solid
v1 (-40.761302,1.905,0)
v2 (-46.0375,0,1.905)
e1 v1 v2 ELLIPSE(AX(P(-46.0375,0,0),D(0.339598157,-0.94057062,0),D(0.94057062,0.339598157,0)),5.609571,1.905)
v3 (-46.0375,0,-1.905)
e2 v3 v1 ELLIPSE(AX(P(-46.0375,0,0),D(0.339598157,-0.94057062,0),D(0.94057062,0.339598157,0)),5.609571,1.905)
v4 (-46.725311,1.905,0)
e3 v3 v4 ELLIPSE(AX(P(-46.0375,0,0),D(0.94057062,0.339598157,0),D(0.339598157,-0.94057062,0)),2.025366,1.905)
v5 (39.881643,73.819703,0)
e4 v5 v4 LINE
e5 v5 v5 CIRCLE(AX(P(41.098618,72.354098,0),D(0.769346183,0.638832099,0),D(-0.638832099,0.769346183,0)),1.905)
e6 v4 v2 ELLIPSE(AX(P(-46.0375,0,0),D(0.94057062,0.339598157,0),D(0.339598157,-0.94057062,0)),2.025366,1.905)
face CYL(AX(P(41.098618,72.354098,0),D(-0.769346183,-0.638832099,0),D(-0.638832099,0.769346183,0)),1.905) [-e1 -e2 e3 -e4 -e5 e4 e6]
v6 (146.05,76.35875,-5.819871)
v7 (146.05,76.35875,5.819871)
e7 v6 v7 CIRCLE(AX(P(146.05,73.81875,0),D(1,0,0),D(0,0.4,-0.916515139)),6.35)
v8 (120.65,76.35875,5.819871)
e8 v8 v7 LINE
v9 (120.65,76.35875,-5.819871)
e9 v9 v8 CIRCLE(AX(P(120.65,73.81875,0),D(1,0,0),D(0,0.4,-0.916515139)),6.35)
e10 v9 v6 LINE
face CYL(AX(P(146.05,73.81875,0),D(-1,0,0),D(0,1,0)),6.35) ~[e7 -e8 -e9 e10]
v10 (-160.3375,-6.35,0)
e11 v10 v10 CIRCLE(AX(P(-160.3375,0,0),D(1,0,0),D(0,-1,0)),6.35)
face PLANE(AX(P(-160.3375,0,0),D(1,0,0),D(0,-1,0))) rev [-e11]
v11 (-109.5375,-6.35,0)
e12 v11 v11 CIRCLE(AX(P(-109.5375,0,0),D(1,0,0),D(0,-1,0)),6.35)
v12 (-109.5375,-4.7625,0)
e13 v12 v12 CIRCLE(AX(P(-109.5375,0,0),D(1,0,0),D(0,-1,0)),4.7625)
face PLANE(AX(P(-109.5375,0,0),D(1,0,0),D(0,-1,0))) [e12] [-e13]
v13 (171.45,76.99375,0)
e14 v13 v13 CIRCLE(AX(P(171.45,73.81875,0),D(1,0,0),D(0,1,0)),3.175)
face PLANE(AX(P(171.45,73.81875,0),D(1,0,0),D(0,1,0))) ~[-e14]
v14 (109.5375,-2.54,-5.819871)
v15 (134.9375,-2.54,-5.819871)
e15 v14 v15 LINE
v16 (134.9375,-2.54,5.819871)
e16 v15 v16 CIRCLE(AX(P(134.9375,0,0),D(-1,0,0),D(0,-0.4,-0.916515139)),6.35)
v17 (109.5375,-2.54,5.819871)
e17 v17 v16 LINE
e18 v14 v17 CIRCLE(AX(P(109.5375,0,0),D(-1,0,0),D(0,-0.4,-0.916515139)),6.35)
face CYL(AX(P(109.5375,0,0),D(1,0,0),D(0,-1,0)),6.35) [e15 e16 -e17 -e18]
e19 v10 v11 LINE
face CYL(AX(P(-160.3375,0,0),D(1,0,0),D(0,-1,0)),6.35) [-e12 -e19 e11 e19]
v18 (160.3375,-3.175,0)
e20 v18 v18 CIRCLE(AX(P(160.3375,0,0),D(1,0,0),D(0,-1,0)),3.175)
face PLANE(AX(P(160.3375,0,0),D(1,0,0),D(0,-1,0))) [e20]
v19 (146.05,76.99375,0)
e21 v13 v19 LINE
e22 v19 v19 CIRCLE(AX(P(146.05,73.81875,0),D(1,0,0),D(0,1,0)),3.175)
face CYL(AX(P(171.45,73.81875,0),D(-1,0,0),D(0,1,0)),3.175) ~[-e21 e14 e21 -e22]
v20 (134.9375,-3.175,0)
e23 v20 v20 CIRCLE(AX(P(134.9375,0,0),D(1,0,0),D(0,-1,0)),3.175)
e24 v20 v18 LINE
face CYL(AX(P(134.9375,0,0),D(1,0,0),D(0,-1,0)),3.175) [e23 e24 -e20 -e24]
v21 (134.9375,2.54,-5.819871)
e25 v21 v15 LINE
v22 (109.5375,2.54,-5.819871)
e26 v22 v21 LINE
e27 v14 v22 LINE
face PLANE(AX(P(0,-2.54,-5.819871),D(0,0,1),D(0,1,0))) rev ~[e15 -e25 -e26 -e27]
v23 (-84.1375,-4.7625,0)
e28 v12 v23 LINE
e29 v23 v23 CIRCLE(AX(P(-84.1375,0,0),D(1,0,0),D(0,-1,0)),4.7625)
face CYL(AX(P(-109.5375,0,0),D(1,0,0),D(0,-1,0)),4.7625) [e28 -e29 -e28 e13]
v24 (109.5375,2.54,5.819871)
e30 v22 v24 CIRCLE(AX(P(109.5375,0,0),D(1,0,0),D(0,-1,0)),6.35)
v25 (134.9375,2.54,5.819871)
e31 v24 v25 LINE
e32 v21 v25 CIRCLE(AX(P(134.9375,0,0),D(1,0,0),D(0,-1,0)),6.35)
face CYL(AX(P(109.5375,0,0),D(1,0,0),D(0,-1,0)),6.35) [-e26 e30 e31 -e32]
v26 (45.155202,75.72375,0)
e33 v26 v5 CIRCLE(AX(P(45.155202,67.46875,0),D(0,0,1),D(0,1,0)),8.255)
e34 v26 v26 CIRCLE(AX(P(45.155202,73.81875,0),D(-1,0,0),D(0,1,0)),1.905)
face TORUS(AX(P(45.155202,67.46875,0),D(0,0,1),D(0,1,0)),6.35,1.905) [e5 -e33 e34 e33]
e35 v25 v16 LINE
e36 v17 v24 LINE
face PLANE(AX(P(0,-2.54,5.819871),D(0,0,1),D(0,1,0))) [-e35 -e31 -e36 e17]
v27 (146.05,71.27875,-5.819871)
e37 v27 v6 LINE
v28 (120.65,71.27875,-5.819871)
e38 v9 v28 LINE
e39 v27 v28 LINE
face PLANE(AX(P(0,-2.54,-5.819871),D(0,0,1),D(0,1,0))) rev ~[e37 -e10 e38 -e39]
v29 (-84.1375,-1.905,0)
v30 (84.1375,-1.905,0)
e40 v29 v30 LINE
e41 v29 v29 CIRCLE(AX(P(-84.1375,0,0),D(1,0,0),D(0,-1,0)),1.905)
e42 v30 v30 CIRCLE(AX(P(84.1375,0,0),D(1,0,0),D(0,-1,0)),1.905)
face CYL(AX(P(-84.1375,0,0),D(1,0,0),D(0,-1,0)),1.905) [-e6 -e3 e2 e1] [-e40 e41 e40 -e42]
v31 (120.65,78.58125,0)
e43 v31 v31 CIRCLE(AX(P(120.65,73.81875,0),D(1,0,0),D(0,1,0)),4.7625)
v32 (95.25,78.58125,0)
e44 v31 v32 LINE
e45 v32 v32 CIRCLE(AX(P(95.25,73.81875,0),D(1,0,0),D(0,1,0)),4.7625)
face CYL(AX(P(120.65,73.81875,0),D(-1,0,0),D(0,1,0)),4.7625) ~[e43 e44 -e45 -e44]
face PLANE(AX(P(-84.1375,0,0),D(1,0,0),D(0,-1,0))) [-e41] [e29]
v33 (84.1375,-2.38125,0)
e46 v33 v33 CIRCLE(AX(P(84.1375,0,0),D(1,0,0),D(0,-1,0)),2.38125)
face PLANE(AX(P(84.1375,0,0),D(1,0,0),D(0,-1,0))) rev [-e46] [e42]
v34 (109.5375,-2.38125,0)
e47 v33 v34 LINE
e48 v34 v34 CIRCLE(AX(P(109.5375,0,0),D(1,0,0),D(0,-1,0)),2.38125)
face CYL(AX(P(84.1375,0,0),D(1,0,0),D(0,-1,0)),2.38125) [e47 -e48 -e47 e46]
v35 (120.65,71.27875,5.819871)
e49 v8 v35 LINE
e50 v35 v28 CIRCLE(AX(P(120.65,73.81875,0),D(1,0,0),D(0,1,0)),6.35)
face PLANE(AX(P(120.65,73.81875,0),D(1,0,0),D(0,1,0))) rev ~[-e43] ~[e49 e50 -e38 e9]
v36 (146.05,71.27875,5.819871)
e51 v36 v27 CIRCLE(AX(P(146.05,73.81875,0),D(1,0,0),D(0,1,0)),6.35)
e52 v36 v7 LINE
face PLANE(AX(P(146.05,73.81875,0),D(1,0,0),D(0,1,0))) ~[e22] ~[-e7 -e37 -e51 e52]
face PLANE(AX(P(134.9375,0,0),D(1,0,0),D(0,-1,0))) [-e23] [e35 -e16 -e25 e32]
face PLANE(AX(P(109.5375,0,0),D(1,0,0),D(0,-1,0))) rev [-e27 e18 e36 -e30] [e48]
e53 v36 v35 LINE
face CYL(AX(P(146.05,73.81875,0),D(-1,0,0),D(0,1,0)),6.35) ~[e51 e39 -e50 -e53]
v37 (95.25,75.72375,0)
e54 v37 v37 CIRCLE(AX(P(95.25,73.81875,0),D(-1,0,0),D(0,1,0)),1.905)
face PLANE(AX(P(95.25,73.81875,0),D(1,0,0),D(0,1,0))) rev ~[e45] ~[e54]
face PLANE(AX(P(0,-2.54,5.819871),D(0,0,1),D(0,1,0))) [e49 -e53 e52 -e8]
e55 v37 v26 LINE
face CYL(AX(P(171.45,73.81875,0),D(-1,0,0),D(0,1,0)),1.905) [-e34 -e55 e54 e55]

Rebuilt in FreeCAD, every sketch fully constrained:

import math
import FreeCAD as App
import Part
import Sketcher
Q = App.Units.Quantity

doc = App.newDocument("Part")
body = doc.addObject("PartDesign::Body", "Body")

sketch1 = body.newObject("Sketcher::SketchObject", "Sketch")
sketch1.AttachmentSupport = (doc.getObject("XY_Plane"), [""])
sketch1.MapMode = "FlatFace"
sketch1.addGeometry([
    Part.LineSegment(App.Vector(-160.34, 0, 0), App.Vector(-160.34, -6.35, 0)),
    Part.LineSegment(App.Vector(-160.34, -6.35, 0), App.Vector(-109.54, -6.35, 0)),
    Part.LineSegment(App.Vector(-109.54, -6.35, 0), App.Vector(-109.54, -4.76, 0)),
    Part.LineSegment(App.Vector(-109.54, -4.76, 0), App.Vector(-84.14, -4.76, 0)),
    Part.LineSegment(App.Vector(-84.14, -4.76, 0), App.Vector(-84.14, -1.91, 0)),
    Part.LineSegment(App.Vector(-84.14, -1.91, 0), App.Vector(84.14, -1.91, 0)),
    Part.LineSegment(App.Vector(84.14, -1.91, 0), App.Vector(84.14, -2.38, 0)),
    Part.LineSegment(App.Vector(84.14, -2.38, 0), App.Vector(109.54, -2.38, 0)),
    Part.LineSegment(App.Vector(109.54, -2.38, 0), App.Vector(109.54, -6.35, 0)),
    Part.LineSegment(App.Vector(109.54, -6.35, 0), App.Vector(134.94, -6.35, 0)),
    Part.LineSegment(App.Vector(134.94, -6.35, 0), App.Vector(134.94, -3.17, 0)),
    Part.LineSegment(App.Vector(134.94, -3.17, 0), App.Vector(160.34, -3.17, 0)),
    Part.LineSegment(App.Vector(160.34, -3.17, 0), App.Vector(160.34, 0, 0)),
    Part.LineSegment(App.Vector(160.34, 0, 0), App.Vector(-160.34, 0, 0)),
], False)
sketch1.addConstraint([
    Sketcher.Constraint("Coincident", 0, 2, 1, 1),
    Sketcher.Constraint("Coincident", 1, 2, 2, 1),
    Sketcher.Constraint("Coincident", 2, 2, 3, 1),
    Sketcher.Constraint("Coincident", 3, 2, 4, 1),
    Sketcher.Constraint("Coincident", 4, 2, 5, 1),
    Sketcher.Constraint("Coincident", 5, 2, 6, 1),
    Sketcher.Constraint("Coincident", 6, 2, 7, 1),
    Sketcher.Constraint("Coincident", 7, 2, 8, 1),
    Sketcher.Constraint("Coincident", 8, 2, 9, 1),
    Sketcher.Constraint("Coincident", 9, 2, 10, 1),
    Sketcher.Constraint("Coincident", 10, 2, 11, 1),
    Sketcher.Constraint("Coincident", 11, 2, 12, 1),
    Sketcher.Constraint("Coincident", 12, 2, 13, 1),
    Sketcher.Constraint("Coincident", 13, 2, 0, 1),
    Sketcher.Constraint("Vertical", 0),
    Sketcher.Constraint("Horizontal", 1),
    Sketcher.Constraint("Vertical", 2),
    Sketcher.Constraint("Horizontal", 3),
    Sketcher.Constraint("Vertical", 4),
    Sketcher.Constraint("Horizontal", 5),
    Sketcher.Constraint("Vertical", 6),
    Sketcher.Constraint("Horizontal", 7),
    Sketcher.Constraint("Vertical", 8),
    Sketcher.Constraint("Horizontal", 9),
    Sketcher.Constraint("Vertical", 10),
    Sketcher.Constraint("Horizontal", 11),
    Sketcher.Constraint("Vertical", 12),
    Sketcher.Constraint("Horizontal", 13),
    Sketcher.Constraint("Symmetric", 12, 2, 13, 2, -1, 1),
    Sketcher.Constraint("Symmetric", 1, 2, 8, 2, -2),
    Sketcher.Constraint("Equal", 3, 7),
    Sketcher.Constraint("Equal", 7, 9),
    Sketcher.Constraint("Equal", 9, 11),
    Sketcher.Constraint("Equal", 10, 12),
    Sketcher.Constraint("DistanceX", 1, 1, 1, 2, Q("2 in")),
    Sketcher.Constraint("DistanceY", 0, 2, 0, 1, Q("0.25 in")),
    Sketcher.Constraint("DistanceX", 5, 1, 5, 2, Q("6.625 in")),
    Sketcher.Constraint("DistanceY", 2, 1, 2, 2, Q("0.0625 in")),
    Sketcher.Constraint("DistanceY", 8, 2, 8, 1, Q("0.15625 in")),
    Sketcher.Constraint("DistanceY", 10, 2, 5, 2, Q("0.05 in")),
])
revolution = body.newObject("PartDesign::Revolution", "Revolution")
revolution.Profile = sketch1
revolution.ReferenceAxis = (sketch1, ["H_Axis"])
revolution.Angle = 360

sketch2 = body.newObject("Sketcher::SketchObject", "Sketch001")
sketch2.AttachmentSupport = (doc.getObject("YZ_Plane"), [""])
sketch2.MapMode = "FlatFace"
sketch2.AttachmentOffset = App.Placement(App.Vector(0, 0, 6.75 * 25.4), App.Rotation())
sketch2.addGeometry(Part.Circle(App.Vector(73.8, 0, 0), App.Vector(0, 0, 1), 1.9), False)
sketch2.addConstraint([
    Sketcher.Constraint("PointOnObject", 0, 3, -1),
    Sketcher.Constraint("Diameter", 0, Q("0.15 in")),
    Sketcher.Constraint("DistanceX", -1, 1, 0, 3, Q("2.90625 in")),
])

sketch3 = body.newObject("Sketcher::SketchObject", "Sketch002")
sketch3.AttachmentSupport = (doc.getObject("XY_Plane"), [""])
sketch3.MapMode = "FlatFace"
sketch3.addGeometry([
    Part.LineSegment(App.Vector(171.4, 73.8, 0), App.Vector(45.2, 73.8, 0)),
    Part.ArcOfCircle(Part.Circle(App.Vector(45.2, 67.5, 0), App.Vector(0, 0, 1), 6.3), math.radians(90), math.radians(130)),
    Part.LineSegment(App.Vector(41.1, 72.4, 0), App.Vector(-46, 0, 0)),
], False)
sketch3.addConstraint([
    Sketcher.Constraint("Tangent", 0, 2, 1, 1),
    Sketcher.Constraint("Tangent", 1, 2, 2, 1),
    Sketcher.Constraint("Horizontal", 0),
    Sketcher.Constraint("PointOnObject", 2, 2, -1),
    Sketcher.Constraint("Radius", 1, Q("0.25 in")),
    Sketcher.Constraint("DistanceX", -1, 1, 0, 1, Q("6.75 in")),
    Sketcher.Constraint("DistanceY", -1, 1, 1, 3, Q("2.65625 in")),
    Sketcher.Constraint("DistanceX", 2, 2, -1, 1, Q("1.8125 in")),
    Sketcher.Constraint("DistanceY", -1, 1, 1, 2, Q("72.354098 mm")),
])
doc.recompute()

additivepipe = body.newObject("PartDesign::AdditivePipe", "AdditivePipe")
additivepipe.Profile = sketch2
additivepipe.Spine = (sketch3, ["Edge1", "Edge2", "Edge3"])

sketch4 = body.newObject("Sketcher::SketchObject", "Sketch003")
sketch4.AttachmentSupport = (doc.getObject("XY_Plane"), [""])
sketch4.MapMode = "FlatFace"
sketch4.addGeometry([
    Part.LineSegment(App.Vector(95.2, 73.8, 0), App.Vector(171.4, 73.8, 0)),
    Part.LineSegment(App.Vector(171.4, 73.8, 0), App.Vector(171.4, 77, 0)),
    Part.LineSegment(App.Vector(171.4, 77, 0), App.Vector(146.1, 77, 0)),
    Part.LineSegment(App.Vector(146.1, 77, 0), App.Vector(146.1, 80.2, 0)),
    Part.LineSegment(App.Vector(146.1, 80.2, 0), App.Vector(120.7, 80.2, 0)),
    Part.LineSegment(App.Vector(120.7, 80.2, 0), App.Vector(120.7, 78.6, 0)),
    Part.LineSegment(App.Vector(120.7, 78.6, 0), App.Vector(95.2, 78.6, 0)),
    Part.LineSegment(App.Vector(95.2, 78.6, 0), App.Vector(95.2, 73.8, 0)),
], False)
sketch4.addGeometry(Part.LineSegment(App.Vector(95.2, 73.8, 0), App.Vector(171.4, 73.8, 0)), True)
sketch4.addConstraint([
    Sketcher.Constraint("Coincident", 0, 2, 1, 1),
    Sketcher.Constraint("Coincident", 1, 2, 2, 1),
    Sketcher.Constraint("Coincident", 2, 2, 3, 1),
    Sketcher.Constraint("Coincident", 3, 2, 4, 1),
    Sketcher.Constraint("Coincident", 4, 2, 5, 1),
    Sketcher.Constraint("Coincident", 5, 2, 6, 1),
    Sketcher.Constraint("Coincident", 6, 2, 7, 1),
    Sketcher.Constraint("Coincident", 7, 2, 0, 1),
    Sketcher.Constraint("Horizontal", 0),
    Sketcher.Constraint("Vertical", 1),
    Sketcher.Constraint("Horizontal", 2),
    Sketcher.Constraint("Vertical", 3),
    Sketcher.Constraint("Horizontal", 4),
    Sketcher.Constraint("Vertical", 5),
    Sketcher.Constraint("Horizontal", 6),
    Sketcher.Constraint("Vertical", 7),
    Sketcher.Constraint("Horizontal", 8),
    Sketcher.Constraint("Coincident", 8, 1, 7, 2),
    Sketcher.Constraint("Vertical", 1, 2, 8, 2),
    Sketcher.Constraint("Equal", 2, 4),
    Sketcher.Constraint("Equal", 4, 6),
    Sketcher.Constraint("Equal", 1, 3),
    Sketcher.Constraint("DistanceX", 0, 1, 0, 2, Q("3 in")),
    Sketcher.Constraint("DistanceY", 1, 1, 1, 2, Q("0.125 in")),
    Sketcher.Constraint("DistanceY", 5, 2, 5, 1, Q("0.0625 in")),
    Sketcher.Constraint("DistanceX", -1, 1, 0, 2, Q("6.75 in")),
    Sketcher.Constraint("DistanceY", -1, 1, 0, 2, Q("2.90625 in")),
])
revolution2 = body.newObject("PartDesign::Revolution", "Revolution001")
revolution2.Profile = sketch4
revolution2.ReferenceAxis = (sketch4, ["Axis0"])
revolution2.Angle = 360

sketch5 = body.newObject("Sketcher::SketchObject", "Sketch004")
sketch5.AttachmentSupport = (doc.getObject("YZ_Plane"), [""])
sketch5.MapMode = "FlatFace"
sketch5.addGeometry([
    Part.LineSegment(App.Vector(-2.5, 6.3, 0), App.Vector(-2.5, 5.8, 0)),
    Part.LineSegment(App.Vector(-2.5, 5.8, 0), App.Vector(76.4, 5.8, 0)),
    Part.LineSegment(App.Vector(76.4, 5.8, 0), App.Vector(76.4, 6.3, 0)),
    Part.LineSegment(App.Vector(76.4, 6.3, 0), App.Vector(-2.5, 6.3, 0)),
    Part.LineSegment(App.Vector(-2.5, -5.8, 0), App.Vector(-2.5, -6.3, 0)),
    Part.LineSegment(App.Vector(-2.5, -6.3, 0), App.Vector(76.4, -6.3, 0)),
    Part.LineSegment(App.Vector(76.4, -6.3, 0), App.Vector(76.4, -5.8, 0)),
    Part.LineSegment(App.Vector(76.4, -5.8, 0), App.Vector(-2.5, -5.8, 0)),
], False)
sketch5.addConstraint([
    Sketcher.Constraint("Coincident", 0, 2, 1, 1),
    Sketcher.Constraint("Coincident", 1, 2, 2, 1),
    Sketcher.Constraint("Coincident", 2, 2, 3, 1),
    Sketcher.Constraint("Coincident", 3, 2, 0, 1),
    Sketcher.Constraint("Coincident", 4, 2, 5, 1),
    Sketcher.Constraint("Coincident", 5, 2, 6, 1),
    Sketcher.Constraint("Coincident", 6, 2, 7, 1),
    Sketcher.Constraint("Coincident", 7, 2, 4, 1),
    Sketcher.Constraint("Vertical", 0),
    Sketcher.Constraint("Horizontal", 1),
    Sketcher.Constraint("Vertical", 2),
    Sketcher.Constraint("Horizontal", 3),
    Sketcher.Constraint("Vertical", 4),
    Sketcher.Constraint("Horizontal", 5),
    Sketcher.Constraint("Vertical", 6),
    Sketcher.Constraint("Horizontal", 7),
    Sketcher.Constraint("Symmetric", 3, 2, 4, 2, -1),
    Sketcher.Constraint("Symmetric", 1, 2, 6, 2, -1),
    Sketcher.Constraint("DistanceX", 0, 2, -1, 1, Q("0.1 in")),
    Sketcher.Constraint("DistanceY", 4, 2, 3, 2, Q("0.5 in")),
    Sketcher.Constraint("DistanceX", 1, 1, 1, 2, Q("78.89875 mm")),
    Sketcher.Constraint("DistanceY", 0, 2, 0, 1, Q("0.530129 mm")),
])
pocket1 = body.newObject("PartDesign::Pocket", "Pocket")
pocket1.Profile = sketch5
pocket1.Type = "ThroughAll"
pocket1.Reversed = True

doc.recompute()
